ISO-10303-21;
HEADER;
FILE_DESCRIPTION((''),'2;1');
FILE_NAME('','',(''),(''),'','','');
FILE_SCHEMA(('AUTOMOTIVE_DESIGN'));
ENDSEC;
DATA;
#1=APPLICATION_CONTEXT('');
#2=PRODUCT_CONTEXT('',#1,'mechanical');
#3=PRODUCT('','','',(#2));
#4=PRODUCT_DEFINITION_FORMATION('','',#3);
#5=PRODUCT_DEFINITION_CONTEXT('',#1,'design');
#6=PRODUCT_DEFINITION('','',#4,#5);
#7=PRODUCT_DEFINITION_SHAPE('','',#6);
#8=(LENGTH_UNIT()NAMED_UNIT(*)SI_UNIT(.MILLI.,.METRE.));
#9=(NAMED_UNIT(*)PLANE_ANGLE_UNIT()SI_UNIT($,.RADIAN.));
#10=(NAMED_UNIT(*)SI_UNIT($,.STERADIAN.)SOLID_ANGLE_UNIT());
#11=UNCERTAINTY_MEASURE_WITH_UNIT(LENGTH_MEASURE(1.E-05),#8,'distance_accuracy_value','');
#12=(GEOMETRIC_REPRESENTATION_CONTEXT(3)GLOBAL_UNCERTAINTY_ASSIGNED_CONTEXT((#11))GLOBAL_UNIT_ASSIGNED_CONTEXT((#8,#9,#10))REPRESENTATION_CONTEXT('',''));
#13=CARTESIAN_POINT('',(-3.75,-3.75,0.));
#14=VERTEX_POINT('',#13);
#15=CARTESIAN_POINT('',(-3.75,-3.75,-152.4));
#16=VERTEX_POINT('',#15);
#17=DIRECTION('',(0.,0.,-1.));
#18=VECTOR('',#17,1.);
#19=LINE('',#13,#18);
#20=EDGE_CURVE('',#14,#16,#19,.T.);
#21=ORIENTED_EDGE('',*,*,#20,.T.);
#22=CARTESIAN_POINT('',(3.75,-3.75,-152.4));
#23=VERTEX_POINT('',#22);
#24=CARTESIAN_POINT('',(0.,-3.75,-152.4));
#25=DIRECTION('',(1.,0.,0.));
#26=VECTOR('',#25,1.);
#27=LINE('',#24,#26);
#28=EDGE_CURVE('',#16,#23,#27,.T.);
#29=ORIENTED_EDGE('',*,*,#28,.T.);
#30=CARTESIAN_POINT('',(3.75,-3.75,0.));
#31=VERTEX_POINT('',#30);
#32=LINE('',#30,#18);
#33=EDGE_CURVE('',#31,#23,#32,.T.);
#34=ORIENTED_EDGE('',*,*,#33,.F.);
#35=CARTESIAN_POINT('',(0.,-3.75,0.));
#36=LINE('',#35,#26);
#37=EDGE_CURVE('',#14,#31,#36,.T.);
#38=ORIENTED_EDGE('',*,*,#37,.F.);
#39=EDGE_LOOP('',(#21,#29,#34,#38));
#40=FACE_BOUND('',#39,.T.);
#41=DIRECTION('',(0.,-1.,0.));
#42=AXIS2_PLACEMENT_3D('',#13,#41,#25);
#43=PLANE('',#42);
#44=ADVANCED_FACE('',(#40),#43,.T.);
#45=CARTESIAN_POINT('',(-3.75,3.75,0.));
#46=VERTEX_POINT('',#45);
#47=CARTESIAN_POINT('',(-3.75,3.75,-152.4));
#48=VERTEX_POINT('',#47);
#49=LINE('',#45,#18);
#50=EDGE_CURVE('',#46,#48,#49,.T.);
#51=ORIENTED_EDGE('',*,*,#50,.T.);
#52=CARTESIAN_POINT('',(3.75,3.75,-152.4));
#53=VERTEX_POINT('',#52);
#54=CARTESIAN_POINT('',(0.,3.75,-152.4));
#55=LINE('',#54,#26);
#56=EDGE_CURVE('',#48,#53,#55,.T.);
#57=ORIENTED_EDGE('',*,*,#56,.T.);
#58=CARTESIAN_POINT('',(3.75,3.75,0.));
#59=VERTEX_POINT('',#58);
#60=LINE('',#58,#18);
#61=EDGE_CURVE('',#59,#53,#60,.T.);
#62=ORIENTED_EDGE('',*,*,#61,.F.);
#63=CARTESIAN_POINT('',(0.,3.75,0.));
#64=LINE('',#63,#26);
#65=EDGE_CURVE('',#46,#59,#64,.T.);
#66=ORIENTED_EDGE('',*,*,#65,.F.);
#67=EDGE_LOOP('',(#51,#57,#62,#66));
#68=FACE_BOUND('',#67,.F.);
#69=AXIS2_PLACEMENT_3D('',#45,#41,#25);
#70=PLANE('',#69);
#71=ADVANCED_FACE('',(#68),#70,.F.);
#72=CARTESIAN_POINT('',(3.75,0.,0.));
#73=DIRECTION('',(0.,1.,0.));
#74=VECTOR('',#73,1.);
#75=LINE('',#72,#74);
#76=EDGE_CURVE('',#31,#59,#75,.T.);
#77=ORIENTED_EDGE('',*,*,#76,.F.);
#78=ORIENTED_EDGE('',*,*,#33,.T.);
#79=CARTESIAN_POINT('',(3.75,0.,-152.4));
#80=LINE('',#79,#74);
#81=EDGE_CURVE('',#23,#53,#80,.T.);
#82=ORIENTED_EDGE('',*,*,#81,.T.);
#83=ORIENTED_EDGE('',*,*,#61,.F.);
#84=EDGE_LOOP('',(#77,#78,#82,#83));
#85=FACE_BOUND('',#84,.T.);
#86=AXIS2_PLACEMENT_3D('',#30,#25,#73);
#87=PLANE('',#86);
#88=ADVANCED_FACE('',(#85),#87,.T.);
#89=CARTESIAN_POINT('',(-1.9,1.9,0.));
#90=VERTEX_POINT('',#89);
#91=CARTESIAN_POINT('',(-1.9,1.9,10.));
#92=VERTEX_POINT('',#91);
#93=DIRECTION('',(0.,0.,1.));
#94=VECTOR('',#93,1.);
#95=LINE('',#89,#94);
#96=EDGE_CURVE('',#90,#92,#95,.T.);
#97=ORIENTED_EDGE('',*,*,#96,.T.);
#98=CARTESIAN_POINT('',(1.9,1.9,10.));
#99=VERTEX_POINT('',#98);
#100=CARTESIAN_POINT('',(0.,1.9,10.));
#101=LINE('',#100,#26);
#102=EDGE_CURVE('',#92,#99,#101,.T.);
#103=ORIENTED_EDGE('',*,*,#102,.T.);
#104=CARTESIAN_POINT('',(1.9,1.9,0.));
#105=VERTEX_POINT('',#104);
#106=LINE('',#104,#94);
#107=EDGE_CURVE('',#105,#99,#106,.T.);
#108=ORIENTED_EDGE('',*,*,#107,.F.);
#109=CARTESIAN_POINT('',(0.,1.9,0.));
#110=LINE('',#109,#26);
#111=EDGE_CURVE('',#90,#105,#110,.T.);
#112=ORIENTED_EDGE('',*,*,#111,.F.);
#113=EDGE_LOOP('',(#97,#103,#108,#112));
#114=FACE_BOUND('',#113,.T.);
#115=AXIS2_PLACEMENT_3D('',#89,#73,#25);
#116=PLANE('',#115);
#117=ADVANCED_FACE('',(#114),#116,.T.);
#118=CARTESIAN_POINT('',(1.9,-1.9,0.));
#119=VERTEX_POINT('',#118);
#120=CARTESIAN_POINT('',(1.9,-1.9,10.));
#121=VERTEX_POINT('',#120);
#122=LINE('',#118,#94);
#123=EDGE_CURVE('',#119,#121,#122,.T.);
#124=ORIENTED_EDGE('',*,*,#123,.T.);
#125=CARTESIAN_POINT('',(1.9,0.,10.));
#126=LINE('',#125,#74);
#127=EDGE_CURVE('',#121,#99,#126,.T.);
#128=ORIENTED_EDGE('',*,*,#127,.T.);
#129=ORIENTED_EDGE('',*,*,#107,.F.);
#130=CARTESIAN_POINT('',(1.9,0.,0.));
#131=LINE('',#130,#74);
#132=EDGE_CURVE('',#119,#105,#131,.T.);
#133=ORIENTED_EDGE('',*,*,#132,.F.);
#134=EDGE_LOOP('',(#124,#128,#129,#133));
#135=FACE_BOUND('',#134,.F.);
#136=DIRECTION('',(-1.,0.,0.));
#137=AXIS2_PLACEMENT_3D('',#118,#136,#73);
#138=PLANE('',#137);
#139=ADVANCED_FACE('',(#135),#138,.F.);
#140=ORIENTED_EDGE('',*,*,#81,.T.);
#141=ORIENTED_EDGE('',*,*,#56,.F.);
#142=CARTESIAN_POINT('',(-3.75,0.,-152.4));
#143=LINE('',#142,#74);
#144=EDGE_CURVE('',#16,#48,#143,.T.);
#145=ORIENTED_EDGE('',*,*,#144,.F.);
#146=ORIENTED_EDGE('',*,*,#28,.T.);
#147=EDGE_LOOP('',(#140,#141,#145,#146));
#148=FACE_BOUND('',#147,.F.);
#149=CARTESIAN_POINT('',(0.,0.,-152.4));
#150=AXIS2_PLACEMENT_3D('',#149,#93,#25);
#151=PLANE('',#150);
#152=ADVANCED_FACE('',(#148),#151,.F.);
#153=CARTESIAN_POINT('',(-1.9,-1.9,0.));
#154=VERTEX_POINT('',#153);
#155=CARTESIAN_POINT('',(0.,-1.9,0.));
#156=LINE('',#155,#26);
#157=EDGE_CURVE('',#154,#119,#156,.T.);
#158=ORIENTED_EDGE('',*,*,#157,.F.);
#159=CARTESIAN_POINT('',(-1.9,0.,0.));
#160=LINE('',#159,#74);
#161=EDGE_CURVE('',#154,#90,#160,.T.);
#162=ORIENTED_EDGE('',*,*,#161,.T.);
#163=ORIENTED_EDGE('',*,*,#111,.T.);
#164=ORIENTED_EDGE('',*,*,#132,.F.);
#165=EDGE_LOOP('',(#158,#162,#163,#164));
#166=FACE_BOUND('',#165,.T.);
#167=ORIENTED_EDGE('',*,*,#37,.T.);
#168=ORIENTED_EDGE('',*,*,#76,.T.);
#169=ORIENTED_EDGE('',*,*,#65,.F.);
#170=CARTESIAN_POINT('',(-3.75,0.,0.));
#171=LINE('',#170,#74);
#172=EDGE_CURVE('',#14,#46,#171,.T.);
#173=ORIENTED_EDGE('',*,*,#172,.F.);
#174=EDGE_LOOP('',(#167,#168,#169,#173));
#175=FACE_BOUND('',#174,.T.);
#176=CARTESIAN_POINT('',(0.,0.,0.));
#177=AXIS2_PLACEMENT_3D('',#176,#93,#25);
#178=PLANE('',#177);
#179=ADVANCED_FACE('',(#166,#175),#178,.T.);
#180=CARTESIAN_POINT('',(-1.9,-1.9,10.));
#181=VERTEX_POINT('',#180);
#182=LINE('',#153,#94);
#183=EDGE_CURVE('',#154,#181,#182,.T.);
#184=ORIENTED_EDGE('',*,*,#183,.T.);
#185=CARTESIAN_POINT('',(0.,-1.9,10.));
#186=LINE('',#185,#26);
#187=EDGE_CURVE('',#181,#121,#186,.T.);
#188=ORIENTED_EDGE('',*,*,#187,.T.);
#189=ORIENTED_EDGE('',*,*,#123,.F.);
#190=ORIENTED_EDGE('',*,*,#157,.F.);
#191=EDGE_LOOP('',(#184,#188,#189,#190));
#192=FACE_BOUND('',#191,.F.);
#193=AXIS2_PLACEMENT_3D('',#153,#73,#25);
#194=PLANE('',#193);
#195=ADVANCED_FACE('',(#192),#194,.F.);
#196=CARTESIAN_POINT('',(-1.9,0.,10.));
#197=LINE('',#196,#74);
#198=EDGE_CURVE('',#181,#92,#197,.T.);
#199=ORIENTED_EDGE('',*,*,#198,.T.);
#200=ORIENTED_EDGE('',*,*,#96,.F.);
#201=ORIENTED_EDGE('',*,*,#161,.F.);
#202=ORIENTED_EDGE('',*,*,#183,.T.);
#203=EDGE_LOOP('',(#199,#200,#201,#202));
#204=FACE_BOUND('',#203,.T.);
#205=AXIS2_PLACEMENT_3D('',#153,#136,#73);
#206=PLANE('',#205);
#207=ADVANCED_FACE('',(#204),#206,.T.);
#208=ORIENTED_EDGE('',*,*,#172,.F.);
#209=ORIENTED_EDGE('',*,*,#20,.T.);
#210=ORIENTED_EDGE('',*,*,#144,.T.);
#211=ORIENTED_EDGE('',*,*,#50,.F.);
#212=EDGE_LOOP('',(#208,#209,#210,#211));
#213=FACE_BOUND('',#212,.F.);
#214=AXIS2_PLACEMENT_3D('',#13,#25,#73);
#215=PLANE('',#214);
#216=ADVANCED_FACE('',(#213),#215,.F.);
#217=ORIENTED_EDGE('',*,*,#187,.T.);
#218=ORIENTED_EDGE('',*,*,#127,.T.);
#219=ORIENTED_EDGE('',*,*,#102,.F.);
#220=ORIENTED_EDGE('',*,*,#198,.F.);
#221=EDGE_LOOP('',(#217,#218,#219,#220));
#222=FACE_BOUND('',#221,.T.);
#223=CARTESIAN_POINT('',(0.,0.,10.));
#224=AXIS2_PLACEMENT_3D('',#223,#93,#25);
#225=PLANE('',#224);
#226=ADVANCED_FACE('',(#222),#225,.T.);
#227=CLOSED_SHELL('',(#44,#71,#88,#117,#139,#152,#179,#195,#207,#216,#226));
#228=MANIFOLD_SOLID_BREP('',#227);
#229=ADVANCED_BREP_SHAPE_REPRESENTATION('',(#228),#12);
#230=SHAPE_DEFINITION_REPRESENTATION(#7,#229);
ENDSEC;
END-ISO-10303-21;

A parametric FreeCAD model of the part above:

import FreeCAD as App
import Part
import Sketcher


def add_polygon(sketch, points):
    """Adds a closed chain of lines whose ends are joined by coincident constraints."""
    first, n = sketch.GeometryCount, len(points)
    for a, b in zip(points, points[1:] + points[:1]):
        sketch.addGeometry(Part.LineSegment(App.Vector(*a, 0), App.Vector(*b, 0)), False)
    for i in range(n):
        sketch.addConstraint(Sketcher.Constraint("Coincident", first + i, 2, first + (i + 1) % n, 1))

doc = App.newDocument("Part")
body = doc.addObject("PartDesign::Body", "Body")

# Sketch on XY plane
sketch1 = doc.addObject("Sketcher::SketchObject", "Sketch")
body.addObject(sketch1)
sketch1.AttachmentSupport = (doc.XY_Plane, [""])
sketch1.MapMode = "FlatFace"
add_polygon(sketch1, [(-4, 4), (-4, -4), (4, -4), (4, 4)])  # lines 0-3
sketch1.addConstraint([
    Sketcher.Constraint("Vertical", 0),
    Sketcher.Constraint("Horizontal", 1),
    Sketcher.Constraint("Vertical", 2),
    Sketcher.Constraint("Horizontal", 3),
    Sketcher.Constraint("Symmetric", 0, 2, 2, 2, -1, 1),
    Sketcher.Constraint("Equal", 3, 0),
    Sketcher.Constraint("DistanceX", 1, 1, 1, 2, 7.5),
])
pad1 = doc.addObject("PartDesign::Pad", "Pad")
body.addObject(pad1)
pad1.Profile = sketch1
pad1.Length = 152.4
pad1.Reversed = True

# Sketch on XY plane
sketch2 = doc.addObject("Sketcher::SketchObject", "Sketch001")
body.addObject(sketch2)
sketch2.AttachmentSupport = (doc.XY_Plane, [""])
sketch2.MapMode = "FlatFace"
add_polygon(sketch2, [(-1.9, 1.9), (-1.9, -1.9), (1.9, -1.9), (1.9, 1.9)])  # lines 0-3
sketch2.addConstraint([
    Sketcher.Constraint("Vertical", 0),
    Sketcher.Constraint("Horizontal", 1),
    Sketcher.Constraint("Vertical", 2),
    Sketcher.Constraint("Horizontal", 3),
    Sketcher.Constraint("Symmetric", 0, 2, 2, 2, -1, 1),
    Sketcher.Constraint("Equal", 3, 0),
    Sketcher.Constraint("DistanceX", 1, 1, 1, 2, 3.8),
])
pad2 = doc.addObject("PartDesign::Pad", "Pad001")
body.addObject(pad2)
pad2.Profile = sketch2
pad2.Length = 10

doc.recompute()
